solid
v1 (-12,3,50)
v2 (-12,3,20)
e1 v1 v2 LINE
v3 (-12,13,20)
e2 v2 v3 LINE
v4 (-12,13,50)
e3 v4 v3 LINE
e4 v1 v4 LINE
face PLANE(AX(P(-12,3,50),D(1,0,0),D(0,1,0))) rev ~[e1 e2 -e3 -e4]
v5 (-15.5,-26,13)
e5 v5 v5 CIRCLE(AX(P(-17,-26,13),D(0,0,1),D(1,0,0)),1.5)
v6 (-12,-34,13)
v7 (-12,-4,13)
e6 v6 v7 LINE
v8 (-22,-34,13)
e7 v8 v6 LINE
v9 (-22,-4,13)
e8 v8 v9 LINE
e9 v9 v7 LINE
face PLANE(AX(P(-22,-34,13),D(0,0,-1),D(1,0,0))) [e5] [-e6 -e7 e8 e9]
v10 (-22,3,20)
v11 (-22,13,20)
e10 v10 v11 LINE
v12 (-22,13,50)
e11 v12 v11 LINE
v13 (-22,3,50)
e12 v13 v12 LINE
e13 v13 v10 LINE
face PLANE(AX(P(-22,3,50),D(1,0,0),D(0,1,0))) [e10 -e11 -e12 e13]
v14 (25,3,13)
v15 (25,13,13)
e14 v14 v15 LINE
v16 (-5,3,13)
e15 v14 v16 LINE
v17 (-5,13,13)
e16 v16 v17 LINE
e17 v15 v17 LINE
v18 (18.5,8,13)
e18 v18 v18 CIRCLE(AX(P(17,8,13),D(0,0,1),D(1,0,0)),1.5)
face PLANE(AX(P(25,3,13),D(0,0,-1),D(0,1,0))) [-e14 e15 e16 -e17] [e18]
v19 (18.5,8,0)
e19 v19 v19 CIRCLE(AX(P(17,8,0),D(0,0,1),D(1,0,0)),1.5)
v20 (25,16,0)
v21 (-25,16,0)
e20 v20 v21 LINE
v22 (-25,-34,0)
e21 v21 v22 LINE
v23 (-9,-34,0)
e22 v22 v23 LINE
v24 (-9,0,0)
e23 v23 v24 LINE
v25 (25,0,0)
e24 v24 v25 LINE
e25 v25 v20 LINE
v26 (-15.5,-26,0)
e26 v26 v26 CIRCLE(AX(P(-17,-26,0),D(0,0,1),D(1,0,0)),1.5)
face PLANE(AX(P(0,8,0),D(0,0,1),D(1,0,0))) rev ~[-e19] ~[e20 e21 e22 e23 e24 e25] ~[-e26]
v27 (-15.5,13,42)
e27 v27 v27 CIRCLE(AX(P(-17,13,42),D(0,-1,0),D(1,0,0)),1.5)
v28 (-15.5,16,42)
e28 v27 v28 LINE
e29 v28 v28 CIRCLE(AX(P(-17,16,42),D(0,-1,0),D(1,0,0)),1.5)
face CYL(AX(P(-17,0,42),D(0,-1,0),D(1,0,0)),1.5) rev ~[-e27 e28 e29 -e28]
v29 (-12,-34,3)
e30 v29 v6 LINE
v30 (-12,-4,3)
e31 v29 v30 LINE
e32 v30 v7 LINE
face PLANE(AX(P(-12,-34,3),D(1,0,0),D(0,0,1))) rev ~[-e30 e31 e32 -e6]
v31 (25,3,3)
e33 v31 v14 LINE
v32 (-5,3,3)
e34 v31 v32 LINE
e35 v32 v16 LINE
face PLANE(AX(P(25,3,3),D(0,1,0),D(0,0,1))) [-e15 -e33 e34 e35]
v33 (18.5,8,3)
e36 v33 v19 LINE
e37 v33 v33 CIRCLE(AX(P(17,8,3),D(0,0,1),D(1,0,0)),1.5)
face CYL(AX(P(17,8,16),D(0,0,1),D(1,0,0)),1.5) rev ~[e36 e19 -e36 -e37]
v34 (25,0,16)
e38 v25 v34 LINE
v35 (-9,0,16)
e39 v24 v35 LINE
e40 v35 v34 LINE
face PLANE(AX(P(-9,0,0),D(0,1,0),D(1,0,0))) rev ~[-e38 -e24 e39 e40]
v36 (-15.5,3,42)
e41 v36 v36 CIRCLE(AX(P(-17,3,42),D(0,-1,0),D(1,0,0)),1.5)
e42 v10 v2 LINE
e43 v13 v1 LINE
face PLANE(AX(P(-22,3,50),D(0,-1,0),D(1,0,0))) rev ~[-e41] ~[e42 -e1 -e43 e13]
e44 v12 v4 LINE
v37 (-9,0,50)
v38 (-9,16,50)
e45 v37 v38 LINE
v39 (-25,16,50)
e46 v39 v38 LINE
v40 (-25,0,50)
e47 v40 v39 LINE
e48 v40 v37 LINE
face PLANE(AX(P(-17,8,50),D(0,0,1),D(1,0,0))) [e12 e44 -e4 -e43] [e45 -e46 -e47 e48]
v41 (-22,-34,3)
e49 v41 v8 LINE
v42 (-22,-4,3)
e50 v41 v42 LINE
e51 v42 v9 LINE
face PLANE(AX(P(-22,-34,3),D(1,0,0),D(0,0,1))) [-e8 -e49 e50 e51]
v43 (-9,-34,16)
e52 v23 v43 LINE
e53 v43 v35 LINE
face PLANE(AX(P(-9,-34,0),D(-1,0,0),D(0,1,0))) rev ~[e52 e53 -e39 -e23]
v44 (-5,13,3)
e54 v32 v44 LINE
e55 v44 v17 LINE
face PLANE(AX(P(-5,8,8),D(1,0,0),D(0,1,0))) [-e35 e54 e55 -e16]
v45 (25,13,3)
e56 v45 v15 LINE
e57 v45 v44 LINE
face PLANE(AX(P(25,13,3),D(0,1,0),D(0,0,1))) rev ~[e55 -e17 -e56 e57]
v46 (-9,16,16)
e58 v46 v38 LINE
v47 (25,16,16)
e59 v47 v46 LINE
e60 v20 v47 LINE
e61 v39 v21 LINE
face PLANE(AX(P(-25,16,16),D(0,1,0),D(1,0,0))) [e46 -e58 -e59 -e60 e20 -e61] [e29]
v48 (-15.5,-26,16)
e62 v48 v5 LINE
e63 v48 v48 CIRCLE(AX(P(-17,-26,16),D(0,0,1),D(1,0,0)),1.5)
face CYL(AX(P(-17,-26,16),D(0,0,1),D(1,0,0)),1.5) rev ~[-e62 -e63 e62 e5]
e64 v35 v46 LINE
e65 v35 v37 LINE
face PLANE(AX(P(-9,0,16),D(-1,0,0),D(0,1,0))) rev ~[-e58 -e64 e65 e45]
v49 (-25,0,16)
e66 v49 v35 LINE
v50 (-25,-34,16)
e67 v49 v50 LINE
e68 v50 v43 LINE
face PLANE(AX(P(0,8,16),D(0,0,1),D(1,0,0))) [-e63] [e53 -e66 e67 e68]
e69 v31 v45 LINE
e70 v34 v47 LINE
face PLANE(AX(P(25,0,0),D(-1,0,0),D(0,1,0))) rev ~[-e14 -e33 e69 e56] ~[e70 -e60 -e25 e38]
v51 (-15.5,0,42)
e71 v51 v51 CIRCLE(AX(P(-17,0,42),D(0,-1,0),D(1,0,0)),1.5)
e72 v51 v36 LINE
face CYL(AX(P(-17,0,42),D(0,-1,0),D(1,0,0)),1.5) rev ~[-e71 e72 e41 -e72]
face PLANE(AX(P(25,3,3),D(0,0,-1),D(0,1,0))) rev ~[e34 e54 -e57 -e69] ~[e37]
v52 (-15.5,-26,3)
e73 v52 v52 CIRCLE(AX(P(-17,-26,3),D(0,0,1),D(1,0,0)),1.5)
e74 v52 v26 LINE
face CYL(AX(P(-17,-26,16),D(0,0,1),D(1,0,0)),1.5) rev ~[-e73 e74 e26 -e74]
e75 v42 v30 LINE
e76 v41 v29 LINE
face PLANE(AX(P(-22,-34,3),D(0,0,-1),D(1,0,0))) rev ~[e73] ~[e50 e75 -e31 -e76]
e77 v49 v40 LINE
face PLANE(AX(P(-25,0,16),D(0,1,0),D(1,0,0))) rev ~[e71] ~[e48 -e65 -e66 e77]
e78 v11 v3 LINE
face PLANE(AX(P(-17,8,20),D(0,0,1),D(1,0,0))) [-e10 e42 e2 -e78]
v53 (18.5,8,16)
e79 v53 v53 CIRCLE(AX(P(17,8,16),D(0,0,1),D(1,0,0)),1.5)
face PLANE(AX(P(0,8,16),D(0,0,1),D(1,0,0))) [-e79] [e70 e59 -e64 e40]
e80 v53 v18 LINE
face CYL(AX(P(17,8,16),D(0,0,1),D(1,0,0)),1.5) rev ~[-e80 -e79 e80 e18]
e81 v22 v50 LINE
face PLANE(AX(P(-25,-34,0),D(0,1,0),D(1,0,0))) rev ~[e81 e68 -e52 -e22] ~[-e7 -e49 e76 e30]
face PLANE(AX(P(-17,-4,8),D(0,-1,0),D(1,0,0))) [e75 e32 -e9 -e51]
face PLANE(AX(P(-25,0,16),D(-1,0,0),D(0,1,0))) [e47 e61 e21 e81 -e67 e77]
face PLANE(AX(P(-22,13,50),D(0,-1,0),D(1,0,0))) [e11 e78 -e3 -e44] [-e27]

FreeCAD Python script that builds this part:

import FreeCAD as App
import Part
import Sketcher

V = App.Vector

doc = App.newDocument("Part")
body = doc.addObject("PartDesign::Body", "Body")

# Sketch on XY plane
sketch1 = body.newObject("Sketcher::SketchObject", "Sketch")
sketch1.AttachmentSupport = (doc.getObject("XY_Plane"), [""])
sketch1.MapMode = "FlatFace"
sketch1.addGeometry([
    Part.LineSegment(V(25, 16, 0), V(-25, 16, 0)),  # 0
    Part.LineSegment(V(-25, 16, 0), V(-25, -34, 0)),  # 1
    Part.LineSegment(V(-25, -34, 0), V(-9, -34, 0)),  # 2
    Part.LineSegment(V(-9, -34, 0), V(-9, 0, 0)),  # 3
    Part.LineSegment(V(-9, 0, 0), V(25, 0, 0)),  # 4
    Part.LineSegment(V(25, 0, 0), V(25, 16, 0)),  # 5
], False)
sketch1.addConstraint([
    Sketcher.Constraint("Coincident", 0, 2, 1, 1),
    Sketcher.Constraint("Coincident", 1, 2, 2, 1),
    Sketcher.Constraint("Coincident", 2, 2, 3, 1),
    Sketcher.Constraint("Coincident", 3, 2, 4, 1),
    Sketcher.Constraint("Coincident", 4, 2, 5, 1),
    Sketcher.Constraint("Coincident", 5, 2, 0, 1),
    Sketcher.Constraint("Horizontal", 0),
    Sketcher.Constraint("Vertical", 1),
    Sketcher.Constraint("Horizontal", 2),
    Sketcher.Constraint("Vertical", 3),
    Sketcher.Constraint("Horizontal", 4),
    Sketcher.Constraint("Vertical", 5),
    Sketcher.Constraint("PointOnObject", 3, 2, -1),
    Sketcher.Constraint("Equal", 0, 1),
    Sketcher.Constraint("Equal", 4, 3),
    Sketcher.Constraint("DistanceX", 0, 2, 0, 1, 50.0),
    Sketcher.Constraint("DistanceX", 2, 1, 2, 2, 16.0),
    Sketcher.Constraint("DistanceX", 0, 2, -1, 1, 25.0),
])
pad1 = body.newObject("PartDesign::Pad", "Pad")
pad1.Profile = sketch1
pad1.Length = 16

# Sketch on YZ plane
sketch2 = body.newObject("Sketcher::SketchObject", "Sketch001")
sketch2.AttachmentSupport = (doc.getObject("YZ_Plane"), [""])
sketch2.MapMode = "FlatFace"
sketch2.AttachmentOffset = App.Placement(V(0, 0, 25), App.Rotation())
sketch2.addGeometry([
    Part.LineSegment(V(3, 13, 0), V(3, 3, 0)),
    Part.LineSegment(V(3, 3, 0), V(13, 3, 0)),
    Part.LineSegment(V(13, 3, 0), V(13, 13, 0)),
    Part.LineSegment(V(13, 13, 0), V(3, 13, 0)),
], False)
sketch2.addConstraint([
    Sketcher.Constraint("Coincident", 0, 2, 1, 1),
    Sketcher.Constraint("Coincident", 1, 2, 2, 1),
    Sketcher.Constraint("Coincident", 2, 2, 3, 1),
    Sketcher.Constraint("Coincident", 3, 2, 0, 1),
    Sketcher.Constraint("Vertical", 0),
    Sketcher.Constraint("Horizontal", 1),
    Sketcher.Constraint("Vertical", 2),
    Sketcher.Constraint("Horizontal", 3),
    Sketcher.Constraint("Equal", 3, 0),
    Sketcher.Constraint("DistanceX", 1, 1, 1, 2, 10.0),
    Sketcher.Constraint("DistanceX", -1, 1, 0, 2, 3.0),
    Sketcher.Constraint("DistanceY", -1, 1, 0, 2, 3.0),
])
pocket1 = body.newObject("PartDesign::Pocket", "Pocket")
pocket1.Profile = sketch2
pocket1.Length = 30

# Sketch on XZ plane
sketch3 = body.newObject("Sketcher::SketchObject", "Sketch002")
sketch3.AttachmentSupport = (doc.getObject("XZ_Plane"), [""])
sketch3.MapMode = "FlatFace"
sketch3.AttachmentOffset = App.Placement(V(0, 0, 34), App.Rotation())
sketch3.addGeometry([
    Part.LineSegment(V(-22, 13, 0), V(-22, 3, 0)),
    Part.LineSegment(V(-22, 3, 0), V(-12, 3, 0)),
    Part.LineSegment(V(-12, 3, 0), V(-12, 13, 0)),
    Part.LineSegment(V(-12, 13, 0), V(-22, 13, 0)),
], False)
sketch3.addConstraint([
    Sketcher.Constraint("Coincident", 0, 2, 1, 1),
    Sketcher.Constraint("Coincident", 1, 2, 2, 1),
    Sketcher.Constraint("Coincident", 2, 2, 3, 1),
    Sketcher.Constraint("Coincident", 3, 2, 0, 1),
    Sketcher.Constraint("Vertical", 0),
    Sketcher.Constraint("Horizontal", 1),
    Sketcher.Constraint("Vertical", 2),
    Sketcher.Constraint("Horizontal", 3),
    Sketcher.Constraint("Equal", 3, 0),
    Sketcher.Constraint("DistanceX", 1, 1, 1, 2, 10.0),
    Sketcher.Constraint("DistanceX", 0, 2, -1, 1, 22.0),
    Sketcher.Constraint("DistanceY", -1, 1, 0, 2, 3.0),
])
pocket2 = body.newObject("PartDesign::Pocket", "Pocket001")
pocket2.Profile = sketch3
pocket2.Length = 30

# Sketch on XY plane
sketch4 = body.newObject("Sketcher::SketchObject", "Sketch003")
sketch4.AttachmentSupport = (doc.getObject("XY_Plane"), [""])
sketch4.MapMode = "FlatFace"
sketch4.AttachmentOffset = App.Placement(V(0, 0, 16), App.Rotation())
sketch4.addGeometry([
    Part.Circle(V(-17, -26, 0), V(0, 0, 1), 1.5),
    Part.Circle(V(17, 8, 0), V(0, 0, 1), 1.5),
], False)
sketch4.addConstraint([
    Sketcher.Constraint("Equal", 0, 1),
    Sketcher.Constraint("Diameter", 0, 3.0),
    Sketcher.Constraint("DistanceX", 0, 3, -1, 1, 17.0),
    Sketcher.Constraint("DistanceY", 0, 3, -1, 1, 26.0),
    Sketcher.Constraint("DistanceX", -1, 1, 1, 3, 17.0),
    Sketcher.Constraint("DistanceY", -1, 1, 1, 3, 8.0),
])
pocket3 = body.newObject("PartDesign::Pocket", "Pocket002")
pocket3.Profile = sketch4
pocket3.Length = 16

# Sketch on XY plane
sketch5 = body.newObject("Sketcher::SketchObject", "Sketch004")
sketch5.AttachmentSupport = (doc.getObject("XY_Plane"), [""])
sketch5.MapMode = "FlatFace"
sketch5.AttachmentOffset = App.Placement(V(0, 0, 16), App.Rotation())
sketch5.addGeometry([
    Part.LineSegment(V(-25, 16, 0), V(-25, 0, 0)),
    Part.LineSegment(V(-25, 0, 0), V(-9, 0, 0)),
    Part.LineSegment(V(-9, 0, 0), V(-9, 16, 0)),
    Part.LineSegment(V(-9, 16, 0), V(-25, 16, 0)),
], False)
sketch5.addConstraint([
    Sketcher.Constraint("Coincident", 0, 2, 1, 1),
    Sketcher.Constraint("Coincident", 1, 2, 2, 1),
    Sketcher.Constraint("Coincident", 2, 2, 3, 1),
    Sketcher.Constraint("Coincident", 3, 2, 0, 1),
    Sketcher.Constraint("Vertical", 0),
    Sketcher.Constraint("Horizontal", 1),
    Sketcher.Constraint("Vertical", 2),
    Sketcher.Constraint("Horizontal", 3),
    Sketcher.Constraint("PointOnObject", 0, 2, -1),
    Sketcher.Constraint("Equal", 3, 0),
    Sketcher.Constraint("DistanceX", 1, 1, 1, 2, 16.0),
    Sketcher.Constraint("DistanceX", 0, 2, -1, 1, 25.0),
])
pad2 = body.newObject("PartDesign::Pad", "Pad001")
pad2.Profile = sketch5
pad2.Length = 34

# Sketch on XY plane
sketch6 = body.newObject("Sketcher::SketchObject", "Sketch005")
sketch6.AttachmentSupport = (doc.getObject("XY_Plane"), [""])
sketch6.MapMode = "FlatFace"
sketch6.AttachmentOffset = App.Placement(V(0, 0, 50), App.Rotation())
sketch6.addGeometry([
    Part.LineSegment(V(-22, 13, 0), V(-22, 3, 0)),
    Part.LineSegment(V(-22, 3, 0), V(-12, 3, 0)),
    Part.LineSegment(V(-12, 3, 0), V(-12, 13, 0)),
    Part.LineSegment(V(-12, 13, 0), V(-22, 13, 0)),
], False)
sketch6.addConstraint([
    Sketcher.Constraint("Coincident", 0, 2, 1, 1),
    Sketcher.Constraint("Coincident", 1, 2, 2, 1),
    Sketcher.Constraint("Coincident", 2, 2, 3, 1),
    Sketcher.Constraint("Coincident", 3, 2, 0, 1),
    Sketcher.Constraint("Vertical", 0),
    Sketcher.Constraint("Horizontal", 1),
    Sketcher.Constraint("Vertical", 2),
    Sketcher.Constraint("Horizontal", 3),
    Sketcher.Constraint("Equal", 3, 0),
    Sketcher.Constraint("DistanceX", 1, 1, 1, 2, 10.0),
    Sketcher.Constraint("DistanceX", 0, 2, -1, 1, 22.0),
    Sketcher.Constraint("DistanceY", -1, 1, 0, 2, 3.0),
])
pocket4 = body.newObject("PartDesign::Pocket", "Pocket003")
pocket4.Profile = sketch6
pocket4.Length = 30

# Sketch on XZ plane
sketch7 = body.newObject("Sketcher::SketchObject", "Sketch006")
sketch7.AttachmentSupport = (doc.getObject("XZ_Plane"), [""])
sketch7.MapMode = "FlatFace"
sketch7.addGeometry(Part.Circle(V(-17, 42, 0), V(0, 0, 1), 1.5), False)
sketch7.addConstraint([
    Sketcher.Constraint("Diameter", 0, 3.0),
    Sketcher.Constraint("DistanceX", 0, 3, -1, 1, 17.0),
    Sketcher.Constraint("DistanceY", -1, 1, 0, 3, 42.0),
])
pocket5 = body.newObject("PartDesign::Pocket", "Pocket004")
pocket5.Profile = sketch7
pocket5.Length = 16

doc.recompute()
